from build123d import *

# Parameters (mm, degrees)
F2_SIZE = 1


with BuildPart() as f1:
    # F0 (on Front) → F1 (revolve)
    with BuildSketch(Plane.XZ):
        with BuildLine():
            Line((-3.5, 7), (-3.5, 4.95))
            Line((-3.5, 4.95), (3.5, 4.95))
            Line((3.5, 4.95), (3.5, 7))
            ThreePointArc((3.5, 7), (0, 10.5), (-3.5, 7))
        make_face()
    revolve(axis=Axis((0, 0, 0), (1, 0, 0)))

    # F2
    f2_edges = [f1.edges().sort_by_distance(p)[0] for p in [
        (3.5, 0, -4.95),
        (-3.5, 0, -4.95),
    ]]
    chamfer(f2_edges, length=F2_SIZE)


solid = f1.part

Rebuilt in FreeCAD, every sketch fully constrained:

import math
import FreeCAD as App
import Part
import Sketcher

V = App.Vector


def edges_at(feature, points):
    """Names of the edges that pass closest to the given points."""
    edges = feature.Shape.Edges
    near = lambda p: min(range(len(edges)), key=lambda i: edges[i].distToShape(Part.Vertex(*p))[0])
    return sorted({f"Edge{near(p) + 1}" for p in points})

doc = App.newDocument("Part")
params = doc.addObject("Spreadsheet::Sheet", "Params")
for row, (alias, value) in enumerate([
    ("sketch1_radius", "3.5 mm"),
    ("sketch1_height", "2.05 mm"),
    ("revolution_angle", "360 deg"),
    ("chamfer_size", "1 mm"),
], start=1):
    params.set(f"A{row}", alias)
    params.set(f"B{row}", "=" + value)
    params.setAlias(f"B{row}", alias)

body = doc.addObject("PartDesign::Body", "Body")

sketch1 = body.newObject("Sketcher::SketchObject", "Sketch")
sketch1.AttachmentSupport = (doc.getObject("XZ_Plane"), [""])
sketch1.MapMode = "FlatFace"
sketch1.addGeometry([
    Part.LineSegment(V(-3.5, 7, 0), V(-3.5, 4.95, 0)),
    Part.LineSegment(V(-3.5, 4.95, 0), V(3.5, 4.95, 0)),
    Part.LineSegment(V(3.5, 4.95, 0), V(3.5, 7, 0)),
    Part.ArcOfCircle(Part.Circle(V(0, 7, 0), V(0, 0, 1), 3.5), math.radians(0), math.radians(180)),
], False)
sketch1.addConstraint([
    Sketcher.Constraint("Coincident", 0, 2, 1, 1),
    Sketcher.Constraint("Coincident", 1, 2, 2, 1),
    Sketcher.Constraint("Tangent", 2, 2, 3, 1),
    Sketcher.Constraint("Tangent", 3, 2, 0, 1),
    Sketcher.Constraint("Vertical", 0),
    Sketcher.Constraint("Horizontal", 1),
    Sketcher.Constraint("Vertical", 2),
    Sketcher.Constraint("PointOnObject", 3, 3, -2),
    Sketcher.Constraint("Radius", 3, 3.5),
    Sketcher.Constraint("DistanceY", -1, 1, 3, 3, 7.0),
    Sketcher.Constraint("DistanceY", 0, 2, 0, 1, 2.05),
])
sketch1.setExpression("Constraints[8]", "Params.sketch1_radius")
sketch1.setExpression("Constraints[10]", "Params.sketch1_height")
revolution = body.newObject("PartDesign::Revolution", "Revolution")
revolution.Profile = sketch1
revolution.ReferenceAxis = (sketch1, ["H_Axis"])
revolution.setExpression("Angle", "Params.revolution_angle")
doc.recompute()

chamfer = body.newObject("PartDesign::Chamfer", "Chamfer")
chamfer.Base = (revolution, edges_at(revolution, [(3.5, 0, -4.95), (-3.5, 0, -4.95)]))
chamfer.setExpression("Size", "Params.chamfer_size")

doc.recompute()
